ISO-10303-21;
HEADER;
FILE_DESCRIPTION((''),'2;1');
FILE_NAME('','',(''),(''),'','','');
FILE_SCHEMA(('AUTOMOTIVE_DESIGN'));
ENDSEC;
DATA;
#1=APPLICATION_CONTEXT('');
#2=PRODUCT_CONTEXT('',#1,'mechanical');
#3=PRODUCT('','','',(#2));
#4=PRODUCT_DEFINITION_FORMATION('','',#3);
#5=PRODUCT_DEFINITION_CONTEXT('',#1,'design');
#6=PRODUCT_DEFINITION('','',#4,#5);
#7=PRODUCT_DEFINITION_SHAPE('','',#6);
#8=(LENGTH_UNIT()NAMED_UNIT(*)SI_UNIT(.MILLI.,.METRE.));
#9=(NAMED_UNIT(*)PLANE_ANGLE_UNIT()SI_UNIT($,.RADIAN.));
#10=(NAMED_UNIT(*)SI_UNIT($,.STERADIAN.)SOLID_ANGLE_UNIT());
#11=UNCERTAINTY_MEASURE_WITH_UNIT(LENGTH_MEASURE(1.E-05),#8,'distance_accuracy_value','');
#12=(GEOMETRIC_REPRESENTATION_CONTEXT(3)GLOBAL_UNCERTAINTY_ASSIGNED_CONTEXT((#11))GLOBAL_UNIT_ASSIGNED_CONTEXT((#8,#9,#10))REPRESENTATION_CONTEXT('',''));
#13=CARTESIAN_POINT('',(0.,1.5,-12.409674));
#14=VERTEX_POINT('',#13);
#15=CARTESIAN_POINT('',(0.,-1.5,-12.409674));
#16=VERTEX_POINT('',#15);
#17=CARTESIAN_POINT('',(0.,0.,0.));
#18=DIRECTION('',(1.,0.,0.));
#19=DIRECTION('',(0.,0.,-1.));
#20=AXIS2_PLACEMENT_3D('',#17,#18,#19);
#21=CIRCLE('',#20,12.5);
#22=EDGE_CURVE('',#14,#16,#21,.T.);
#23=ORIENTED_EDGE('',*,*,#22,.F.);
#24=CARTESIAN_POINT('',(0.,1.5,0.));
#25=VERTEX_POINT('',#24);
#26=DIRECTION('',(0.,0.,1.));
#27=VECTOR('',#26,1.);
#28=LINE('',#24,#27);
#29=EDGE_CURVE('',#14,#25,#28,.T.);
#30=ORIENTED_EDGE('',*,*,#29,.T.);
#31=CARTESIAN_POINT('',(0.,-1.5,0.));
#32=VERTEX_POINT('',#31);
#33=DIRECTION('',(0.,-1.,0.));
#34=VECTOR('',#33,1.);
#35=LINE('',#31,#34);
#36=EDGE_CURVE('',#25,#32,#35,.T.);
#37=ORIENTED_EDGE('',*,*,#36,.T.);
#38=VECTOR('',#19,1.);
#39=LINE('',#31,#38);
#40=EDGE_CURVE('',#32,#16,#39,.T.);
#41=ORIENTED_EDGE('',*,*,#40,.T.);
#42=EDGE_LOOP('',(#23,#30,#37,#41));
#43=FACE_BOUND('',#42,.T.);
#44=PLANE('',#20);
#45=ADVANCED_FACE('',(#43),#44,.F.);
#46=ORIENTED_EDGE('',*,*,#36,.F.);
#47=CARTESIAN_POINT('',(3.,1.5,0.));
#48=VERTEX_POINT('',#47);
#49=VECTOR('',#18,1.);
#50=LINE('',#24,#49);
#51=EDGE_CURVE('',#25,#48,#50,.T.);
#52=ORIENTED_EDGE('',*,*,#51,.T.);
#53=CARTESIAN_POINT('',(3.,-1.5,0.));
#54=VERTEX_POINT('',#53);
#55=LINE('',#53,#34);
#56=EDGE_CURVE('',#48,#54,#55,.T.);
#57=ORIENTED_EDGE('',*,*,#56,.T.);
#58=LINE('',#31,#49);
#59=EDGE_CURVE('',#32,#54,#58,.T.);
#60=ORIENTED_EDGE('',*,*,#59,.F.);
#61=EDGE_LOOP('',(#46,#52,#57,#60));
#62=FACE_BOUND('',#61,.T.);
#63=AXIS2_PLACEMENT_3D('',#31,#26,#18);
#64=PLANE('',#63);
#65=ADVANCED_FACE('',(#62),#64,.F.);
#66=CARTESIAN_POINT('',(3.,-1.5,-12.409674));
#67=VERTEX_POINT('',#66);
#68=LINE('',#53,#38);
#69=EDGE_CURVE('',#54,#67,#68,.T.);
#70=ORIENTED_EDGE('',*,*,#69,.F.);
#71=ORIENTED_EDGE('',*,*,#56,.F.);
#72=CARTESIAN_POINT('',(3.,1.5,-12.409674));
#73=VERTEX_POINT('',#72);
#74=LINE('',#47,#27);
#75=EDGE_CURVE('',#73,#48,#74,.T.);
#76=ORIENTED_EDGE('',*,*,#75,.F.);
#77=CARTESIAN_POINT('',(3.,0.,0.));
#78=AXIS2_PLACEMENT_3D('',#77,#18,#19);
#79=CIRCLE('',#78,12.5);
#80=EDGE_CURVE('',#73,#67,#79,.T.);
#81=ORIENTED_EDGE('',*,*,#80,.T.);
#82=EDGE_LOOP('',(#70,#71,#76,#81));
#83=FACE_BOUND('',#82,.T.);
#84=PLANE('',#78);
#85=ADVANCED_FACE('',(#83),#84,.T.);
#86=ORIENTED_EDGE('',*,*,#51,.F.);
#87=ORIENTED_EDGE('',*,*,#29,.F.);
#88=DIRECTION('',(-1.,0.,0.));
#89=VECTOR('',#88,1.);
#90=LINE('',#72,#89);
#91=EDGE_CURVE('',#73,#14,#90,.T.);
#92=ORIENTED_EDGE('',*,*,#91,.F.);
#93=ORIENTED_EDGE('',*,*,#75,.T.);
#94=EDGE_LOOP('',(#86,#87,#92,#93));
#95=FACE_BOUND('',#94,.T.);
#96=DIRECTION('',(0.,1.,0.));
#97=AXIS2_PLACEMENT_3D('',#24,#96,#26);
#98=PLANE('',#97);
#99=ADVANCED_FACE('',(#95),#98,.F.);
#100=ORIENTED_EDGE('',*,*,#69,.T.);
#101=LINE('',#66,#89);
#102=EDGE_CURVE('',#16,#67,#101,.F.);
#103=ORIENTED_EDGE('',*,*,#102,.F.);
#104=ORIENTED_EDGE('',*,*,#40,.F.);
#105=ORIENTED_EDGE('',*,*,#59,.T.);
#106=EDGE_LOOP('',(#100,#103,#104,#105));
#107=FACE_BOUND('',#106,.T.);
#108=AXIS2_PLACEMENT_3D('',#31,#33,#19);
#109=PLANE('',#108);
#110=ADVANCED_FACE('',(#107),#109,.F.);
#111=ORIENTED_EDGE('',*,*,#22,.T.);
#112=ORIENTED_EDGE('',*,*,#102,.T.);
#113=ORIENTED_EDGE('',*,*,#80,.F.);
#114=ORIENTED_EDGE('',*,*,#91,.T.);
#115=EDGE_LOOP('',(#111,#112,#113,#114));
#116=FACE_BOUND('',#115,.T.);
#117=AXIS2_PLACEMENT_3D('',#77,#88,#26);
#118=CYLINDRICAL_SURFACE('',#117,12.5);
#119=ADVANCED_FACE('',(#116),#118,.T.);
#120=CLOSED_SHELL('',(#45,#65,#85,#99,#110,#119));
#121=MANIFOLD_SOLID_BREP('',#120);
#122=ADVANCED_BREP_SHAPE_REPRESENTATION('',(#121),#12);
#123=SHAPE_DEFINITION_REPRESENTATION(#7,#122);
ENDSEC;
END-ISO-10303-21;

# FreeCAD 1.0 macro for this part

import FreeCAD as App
import Part
import Sketcher

V = App.Vector

doc = App.newDocument("Part")
body = doc.addObject("PartDesign::Body", "Body")

sketch1 = body.newObject("Sketcher::SketchObject", "Sketch")
sketch1.AttachmentSupport = (doc.getObject("YZ_Plane"), [""])
sketch1.MapMode = "FlatFace"
sketch1.addGeometry(Part.Circle(V(0, 0, 0), V(0, 0, 1), 12.5), False)
sketch1.addConstraint(Sketcher.Constraint("Coincident", 0, 3, -1, 1))
sketch1.addConstraint(Sketcher.Constraint("Diameter", 0, 25.0))
pad1 = body.newObject("PartDesign::Pad", "Pad")
pad1.Profile = sketch1
pad1.Length = 3

sketch2 = body.newObject("Sketcher::SketchObject", "Sketch001")
sketch2.AttachmentSupport = (doc.getObject("YZ_Plane"), [""])
sketch2.MapMode = "FlatFace"
sketch2.AttachmentOffset = App.Placement(V(0, 0, 3), App.Rotation())
sketch2.addGeometry(Part.LineSegment(V(1.5, 0, 0), V(-1.5, 0, 0)), False)
sketch2.addGeometry(Part.LineSegment(V(-1.5, 0, 0), V(-1.5, -25, 0)), False)
sketch2.addGeometry(Part.LineSegment(V(-1.5, -25, 0), V(1.5, -25, 0)), False)
sketch2.addGeometry(Part.LineSegment(V(1.5, -25, 0), V(1.5, 0, 0)), False)
sketch2.addConstraint(Sketcher.Constraint("Coincident", 0, 2, 1, 1))
sketch2.addConstraint(Sketcher.Constraint("Coincident", 1, 2, 2, 1))
sketch2.addConstraint(Sketcher.Constraint("Coincident", 2, 2, 3, 1))
sketch2.addConstraint(Sketcher.Constraint("Coincident", 3, 2, 0, 1))
sketch2.addConstraint(Sketcher.Constraint("Horizontal", 0))
sketch2.addConstraint(Sketcher.Constraint("Vertical", 1))
sketch2.addConstraint(Sketcher.Constraint("Horizontal", 2))
sketch2.addConstraint(Sketcher.Constraint("Vertical", 3))
sketch2.addConstraint(Sketcher.Constraint("Symmetric", 0, 2, 3, 2, -1, 1))
sketch2.addConstraint(Sketcher.Constraint("DistanceX", 0, 2, 0, 1, 3.0))
sketch2.addConstraint(Sketcher.Constraint("DistanceY", 1, 2, 1, 1, 25.0))
pocket1 = body.newObject("PartDesign::Pocket", "Pocket")
pocket1.Profile = sketch2
pocket1.Length = 3

doc.recompute()
